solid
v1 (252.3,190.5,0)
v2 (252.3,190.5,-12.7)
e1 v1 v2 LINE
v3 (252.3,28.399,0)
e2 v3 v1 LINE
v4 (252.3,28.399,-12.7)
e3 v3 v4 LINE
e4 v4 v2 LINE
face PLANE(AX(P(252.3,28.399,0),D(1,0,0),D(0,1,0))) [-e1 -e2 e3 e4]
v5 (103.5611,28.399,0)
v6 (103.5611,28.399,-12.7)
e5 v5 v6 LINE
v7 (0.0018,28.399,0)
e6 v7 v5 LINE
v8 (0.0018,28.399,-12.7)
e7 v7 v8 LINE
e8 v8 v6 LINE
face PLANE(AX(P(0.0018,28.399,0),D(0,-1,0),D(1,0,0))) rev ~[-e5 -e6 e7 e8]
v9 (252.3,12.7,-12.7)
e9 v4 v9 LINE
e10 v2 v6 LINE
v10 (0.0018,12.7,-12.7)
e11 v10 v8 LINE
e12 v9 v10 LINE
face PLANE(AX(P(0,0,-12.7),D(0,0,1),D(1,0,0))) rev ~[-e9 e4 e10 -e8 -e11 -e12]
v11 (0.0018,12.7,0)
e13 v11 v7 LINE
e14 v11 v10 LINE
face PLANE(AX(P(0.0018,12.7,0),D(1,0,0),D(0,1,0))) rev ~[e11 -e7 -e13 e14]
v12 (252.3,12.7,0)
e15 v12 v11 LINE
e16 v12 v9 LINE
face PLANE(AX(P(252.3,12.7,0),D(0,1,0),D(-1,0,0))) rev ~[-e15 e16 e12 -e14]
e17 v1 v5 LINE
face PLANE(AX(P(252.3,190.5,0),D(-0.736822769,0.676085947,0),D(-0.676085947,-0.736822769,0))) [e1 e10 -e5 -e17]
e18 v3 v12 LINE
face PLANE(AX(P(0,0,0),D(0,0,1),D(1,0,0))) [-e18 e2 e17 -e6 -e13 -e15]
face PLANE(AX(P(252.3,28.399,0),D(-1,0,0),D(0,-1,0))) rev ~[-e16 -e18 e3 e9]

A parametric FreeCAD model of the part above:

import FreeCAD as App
import Part
import Sketcher
from FreeCAD import Vector
Q = App.Units.Quantity


def add_polygon(sketch, points):
    """Adds a closed chain of lines whose ends are joined by coincident constraints."""
    first, n = sketch.GeometryCount, len(points)
    for a, b in zip(points, points[1:] + points[:1]):
        sketch.addGeometry(Part.LineSegment(App.Vector(*a, 0), App.Vector(*b, 0)), False)
    for i in range(n):
        sketch.addConstraint(Sketcher.Constraint("Coincident", first + i, 2, first + (i + 1) % n, 1))

doc = App.newDocument("Part")
body = doc.addObject("PartDesign::Body", "Body")

# Sketch on XY plane
sketch1 = body.newObject("Sketcher::SketchObject", "Sketch")
sketch1.AttachmentSupport = (doc.getObject("XY_Plane"), [""])
sketch1.MapMode = "FlatFace"
add_polygon(sketch1, [(0, 13), (252, 13), (252, 190), (104, 28), (0, 28)])  # lines 0-4
sketch1.addConstraint([
    Sketcher.Constraint("Horizontal", 0),
    Sketcher.Constraint("Vertical", 1),
    Sketcher.Constraint("Horizontal", 3),
    Sketcher.Constraint("Vertical", 4),
    Sketcher.Constraint("DistanceY", 1, 1, 1, 2, Q("7 in")),
    Sketcher.Constraint("DistanceY", -1, 1, 0, 2, Q("0.5 in")),
    Sketcher.Constraint("Distance", 2, 220.0),
    Sketcher.Constraint("DistanceX", 0, 1, 0, 2, Q("9.933 in")),
    Sketcher.Constraint("DistanceX", 3, 2, 3, 1, 103.5593),
    Sketcher.Constraint("DistanceX", -1, 1, 2, 2, Q("4.0772 in")),
])
pad1 = body.newObject("PartDesign::Pad", "Pad")
pad1.Profile = sketch1
pad1.Length = Q("0.5 in")
pad1.Reversed = True

doc.recompute()
